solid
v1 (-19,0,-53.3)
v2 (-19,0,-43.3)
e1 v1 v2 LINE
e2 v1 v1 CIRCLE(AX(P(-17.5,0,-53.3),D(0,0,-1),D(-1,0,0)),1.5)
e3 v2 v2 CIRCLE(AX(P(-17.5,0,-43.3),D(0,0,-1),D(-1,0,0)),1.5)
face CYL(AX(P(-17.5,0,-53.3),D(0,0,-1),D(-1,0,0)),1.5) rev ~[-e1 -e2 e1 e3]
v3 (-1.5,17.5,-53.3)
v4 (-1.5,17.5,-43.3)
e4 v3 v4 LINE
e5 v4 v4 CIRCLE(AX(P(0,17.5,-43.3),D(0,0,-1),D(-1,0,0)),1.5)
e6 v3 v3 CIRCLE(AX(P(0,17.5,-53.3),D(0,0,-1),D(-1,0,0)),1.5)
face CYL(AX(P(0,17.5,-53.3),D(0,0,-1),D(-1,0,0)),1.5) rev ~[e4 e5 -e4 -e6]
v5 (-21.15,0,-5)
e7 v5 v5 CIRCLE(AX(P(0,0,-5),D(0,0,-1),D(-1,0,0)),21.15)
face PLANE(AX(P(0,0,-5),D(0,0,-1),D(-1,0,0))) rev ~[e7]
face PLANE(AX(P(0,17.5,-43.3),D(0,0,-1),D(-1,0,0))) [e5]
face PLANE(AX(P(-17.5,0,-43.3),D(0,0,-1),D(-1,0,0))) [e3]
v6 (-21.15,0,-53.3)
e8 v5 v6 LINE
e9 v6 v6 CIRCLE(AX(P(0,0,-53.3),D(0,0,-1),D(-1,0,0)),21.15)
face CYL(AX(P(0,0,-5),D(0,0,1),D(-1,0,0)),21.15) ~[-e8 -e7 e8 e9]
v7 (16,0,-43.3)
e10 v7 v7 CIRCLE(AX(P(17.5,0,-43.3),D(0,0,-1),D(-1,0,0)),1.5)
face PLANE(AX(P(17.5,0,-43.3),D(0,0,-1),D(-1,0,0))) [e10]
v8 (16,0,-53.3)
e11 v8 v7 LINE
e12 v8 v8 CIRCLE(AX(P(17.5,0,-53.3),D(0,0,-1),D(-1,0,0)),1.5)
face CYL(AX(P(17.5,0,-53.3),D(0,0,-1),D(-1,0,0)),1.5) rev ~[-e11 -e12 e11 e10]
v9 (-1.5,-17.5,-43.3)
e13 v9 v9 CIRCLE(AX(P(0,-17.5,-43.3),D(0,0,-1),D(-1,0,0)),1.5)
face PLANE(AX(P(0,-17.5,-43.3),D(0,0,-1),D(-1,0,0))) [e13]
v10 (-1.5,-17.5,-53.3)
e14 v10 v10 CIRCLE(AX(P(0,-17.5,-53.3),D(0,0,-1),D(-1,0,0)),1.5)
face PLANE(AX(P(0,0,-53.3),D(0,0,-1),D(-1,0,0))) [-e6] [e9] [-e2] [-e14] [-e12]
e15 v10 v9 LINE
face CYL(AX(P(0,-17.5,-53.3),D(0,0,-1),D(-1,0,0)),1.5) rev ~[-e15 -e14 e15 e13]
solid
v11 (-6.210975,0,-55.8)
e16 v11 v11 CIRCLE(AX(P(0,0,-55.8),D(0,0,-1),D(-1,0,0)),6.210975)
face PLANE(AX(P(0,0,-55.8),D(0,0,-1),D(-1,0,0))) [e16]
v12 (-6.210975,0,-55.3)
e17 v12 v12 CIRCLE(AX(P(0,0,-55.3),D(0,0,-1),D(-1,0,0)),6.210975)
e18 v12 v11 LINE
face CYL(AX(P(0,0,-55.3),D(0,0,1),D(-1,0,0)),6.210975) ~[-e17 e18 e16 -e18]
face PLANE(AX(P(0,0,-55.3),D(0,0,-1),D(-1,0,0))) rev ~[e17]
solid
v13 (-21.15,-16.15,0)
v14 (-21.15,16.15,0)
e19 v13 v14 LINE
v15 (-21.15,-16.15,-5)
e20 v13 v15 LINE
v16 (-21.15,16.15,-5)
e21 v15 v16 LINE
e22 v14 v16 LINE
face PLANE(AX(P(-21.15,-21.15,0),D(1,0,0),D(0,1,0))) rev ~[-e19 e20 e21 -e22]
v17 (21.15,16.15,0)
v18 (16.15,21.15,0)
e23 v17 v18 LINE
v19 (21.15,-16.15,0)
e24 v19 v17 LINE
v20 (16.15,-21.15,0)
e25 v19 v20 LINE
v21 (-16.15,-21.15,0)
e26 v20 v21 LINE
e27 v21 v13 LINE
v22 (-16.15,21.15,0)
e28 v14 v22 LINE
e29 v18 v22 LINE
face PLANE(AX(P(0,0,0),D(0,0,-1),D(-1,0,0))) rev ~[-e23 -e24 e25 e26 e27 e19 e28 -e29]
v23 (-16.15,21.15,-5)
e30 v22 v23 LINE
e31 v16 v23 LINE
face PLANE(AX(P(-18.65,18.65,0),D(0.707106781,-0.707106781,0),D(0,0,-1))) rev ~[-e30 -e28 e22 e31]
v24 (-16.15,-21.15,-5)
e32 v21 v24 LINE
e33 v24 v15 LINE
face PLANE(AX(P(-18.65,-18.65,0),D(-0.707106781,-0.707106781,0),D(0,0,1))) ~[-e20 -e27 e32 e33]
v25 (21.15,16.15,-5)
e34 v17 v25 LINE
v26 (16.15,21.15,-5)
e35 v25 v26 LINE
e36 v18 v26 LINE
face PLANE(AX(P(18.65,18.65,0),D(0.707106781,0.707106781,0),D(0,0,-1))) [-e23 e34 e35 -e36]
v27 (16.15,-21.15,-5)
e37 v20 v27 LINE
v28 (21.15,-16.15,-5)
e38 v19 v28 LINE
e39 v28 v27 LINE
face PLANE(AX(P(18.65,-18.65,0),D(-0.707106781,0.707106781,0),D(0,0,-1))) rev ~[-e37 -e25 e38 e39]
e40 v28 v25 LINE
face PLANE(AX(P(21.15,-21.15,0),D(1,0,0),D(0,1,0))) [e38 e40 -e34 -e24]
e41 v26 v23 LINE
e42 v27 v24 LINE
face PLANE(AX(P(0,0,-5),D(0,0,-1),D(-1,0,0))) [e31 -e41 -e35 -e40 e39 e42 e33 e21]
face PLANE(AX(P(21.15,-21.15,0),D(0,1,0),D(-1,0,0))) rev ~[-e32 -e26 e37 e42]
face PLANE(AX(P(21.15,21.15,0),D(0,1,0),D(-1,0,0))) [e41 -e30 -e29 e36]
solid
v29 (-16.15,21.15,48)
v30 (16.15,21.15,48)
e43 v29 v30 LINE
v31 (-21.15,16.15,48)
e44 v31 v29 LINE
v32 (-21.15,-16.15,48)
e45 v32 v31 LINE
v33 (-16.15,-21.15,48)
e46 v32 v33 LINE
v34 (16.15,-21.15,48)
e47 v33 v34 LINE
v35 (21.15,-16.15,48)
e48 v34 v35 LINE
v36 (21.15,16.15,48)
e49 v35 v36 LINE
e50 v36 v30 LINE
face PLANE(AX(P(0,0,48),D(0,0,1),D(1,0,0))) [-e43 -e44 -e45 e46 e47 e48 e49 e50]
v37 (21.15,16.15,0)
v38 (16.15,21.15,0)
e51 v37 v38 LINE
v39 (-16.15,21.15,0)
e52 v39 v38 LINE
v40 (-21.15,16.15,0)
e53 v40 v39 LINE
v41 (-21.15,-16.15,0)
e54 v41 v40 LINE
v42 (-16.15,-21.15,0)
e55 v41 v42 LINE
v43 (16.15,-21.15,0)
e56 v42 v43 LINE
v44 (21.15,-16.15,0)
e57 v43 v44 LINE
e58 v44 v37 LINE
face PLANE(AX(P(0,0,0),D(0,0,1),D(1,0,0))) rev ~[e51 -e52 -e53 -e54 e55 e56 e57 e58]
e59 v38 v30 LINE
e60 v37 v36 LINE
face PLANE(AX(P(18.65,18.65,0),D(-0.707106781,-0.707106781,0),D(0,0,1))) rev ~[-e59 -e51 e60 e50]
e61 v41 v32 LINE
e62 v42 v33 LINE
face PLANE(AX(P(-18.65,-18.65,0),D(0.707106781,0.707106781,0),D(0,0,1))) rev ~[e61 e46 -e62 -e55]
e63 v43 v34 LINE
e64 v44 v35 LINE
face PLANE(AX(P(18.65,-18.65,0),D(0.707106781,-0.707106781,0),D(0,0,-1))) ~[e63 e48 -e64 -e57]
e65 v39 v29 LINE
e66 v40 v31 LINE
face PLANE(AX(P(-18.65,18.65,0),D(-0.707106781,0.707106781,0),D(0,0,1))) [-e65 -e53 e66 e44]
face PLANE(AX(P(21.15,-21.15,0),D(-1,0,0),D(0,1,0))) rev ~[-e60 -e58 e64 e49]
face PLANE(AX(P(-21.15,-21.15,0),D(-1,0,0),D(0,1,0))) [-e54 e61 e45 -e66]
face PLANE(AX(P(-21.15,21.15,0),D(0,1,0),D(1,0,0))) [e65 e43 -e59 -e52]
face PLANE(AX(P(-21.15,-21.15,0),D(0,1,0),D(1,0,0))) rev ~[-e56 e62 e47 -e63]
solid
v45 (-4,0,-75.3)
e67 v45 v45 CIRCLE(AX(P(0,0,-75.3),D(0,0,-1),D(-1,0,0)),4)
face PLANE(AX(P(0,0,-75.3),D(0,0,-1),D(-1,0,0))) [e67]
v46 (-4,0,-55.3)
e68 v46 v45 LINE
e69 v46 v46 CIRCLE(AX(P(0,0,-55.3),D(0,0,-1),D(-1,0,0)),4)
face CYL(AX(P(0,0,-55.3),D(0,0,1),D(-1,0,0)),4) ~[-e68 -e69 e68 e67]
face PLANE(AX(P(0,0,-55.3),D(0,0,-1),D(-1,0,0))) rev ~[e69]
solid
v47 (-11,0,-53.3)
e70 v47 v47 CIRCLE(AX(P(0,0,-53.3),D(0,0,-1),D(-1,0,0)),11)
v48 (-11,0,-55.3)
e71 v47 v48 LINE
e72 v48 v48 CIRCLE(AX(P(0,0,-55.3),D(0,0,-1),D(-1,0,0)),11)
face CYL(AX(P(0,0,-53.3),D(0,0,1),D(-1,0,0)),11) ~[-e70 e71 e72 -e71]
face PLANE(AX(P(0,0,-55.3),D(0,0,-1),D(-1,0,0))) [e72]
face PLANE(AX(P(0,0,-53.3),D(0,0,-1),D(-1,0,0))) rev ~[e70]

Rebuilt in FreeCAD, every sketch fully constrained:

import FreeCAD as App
import Part
import Sketcher
from FreeCAD import Vector
Q = App.Units.Quantity


def edges_at(feature, points):
    """Names of the edges that pass closest to the given points."""
    edges = feature.Shape.Edges
    near = lambda p: min(range(len(edges)), key=lambda i: edges[i].distToShape(Part.Vertex(*p))[0])
    return sorted({f"Edge{near(p) + 1}" for p in points})


def add_polygon(sketch, points):
    """Adds a closed chain of lines whose ends are joined by coincident constraints."""
    first, n = sketch.GeometryCount, len(points)
    for a, b in zip(points, points[1:] + points[:1]):
        sketch.addGeometry(Part.LineSegment(App.Vector(*a, 0), App.Vector(*b, 0)), False)
    for i in range(n):
        sketch.addConstraint(Sketcher.Constraint("Coincident", first + i, 2, first + (i + 1) % n, 1))

doc = App.newDocument("Part")
params = doc.addObject("Spreadsheet::Sheet", "Params")
for row, (alias, value) in enumerate([
    ("sketch1_width", "42.3 mm"),
    ("pad1_length", "48 mm"),
    ("chamfer_size", "5 mm"),
    ("sketch2_width", "42.3 mm"),
    ("pad2_length", "5 mm"),
    ("chamfer2_size", "5 mm"),
    ("sketch3_diameter", "42.3 mm"),
    ("pad3_length", "48.3 mm"),
    ("sketch4_diameter", "3 mm"),
    ("pocket1_length", "10 mm"),
    ("sketch5_diameter", "22 mm"),
    ("pad4_length", "2 mm"),
    ("sketch6_diameter", "8 mm"),
    ("pad5_length", "20 mm"),
    ("pad6_length", "0.5 mm"),
], start=1):
    params.set(f"A{row}", alias)
    params.set(f"B{row}", "=" + value)
    params.setAlias(f"B{row}", alias)

body = doc.addObject("PartDesign::Body", "Body")

# Sketch on XY plane
sketch1 = doc.addObject("Sketcher::SketchObject", "Sketch")
body.addObject(sketch1)
sketch1.AttachmentSupport = (doc.XY_Plane, [""])
sketch1.MapMode = "FlatFace"
add_polygon(sketch1, [(-21.15, 21.15), (-21.15, -21.15), (21.15, -21.15), (21.15, 21.15)])  # lines 0-3
sketch1.addConstraint(Sketcher.Constraint("Vertical", 0))
sketch1.addConstraint(Sketcher.Constraint("Horizontal", 1))
sketch1.addConstraint(Sketcher.Constraint("Vertical", 2))
sketch1.addConstraint(Sketcher.Constraint("Horizontal", 3))
sketch1.addConstraint(Sketcher.Constraint("Symmetric", 0, 2, 2, 2, -1, 1))
sketch1.addConstraint(Sketcher.Constraint("Equal", 3, 0))
sketch1.addConstraint(Sketcher.Constraint("DistanceX", 1, 1, 1, 2, Q("42.3 mm")))
sketch1.setExpression("Constraints[10]", "Params.sketch1_width")
pad1 = doc.addObject("PartDesign::Pad", "Pad")
body.addObject(pad1)
pad1.Profile = sketch1
pad1.setExpression("Length", "Params.pad1_length")
doc.recompute()

chamfer = doc.addObject("PartDesign::Chamfer", "Chamfer")
body.addObject(chamfer)
chamfer.Base = (pad1, edges_at(pad1, [
    (21.15, -21.15, 24),
    (-21.15, -21.15, 24),
    (-21.15, 21.15, 24),
    (21.15, 21.15, 24),
]))
chamfer.setExpression("Size", "Params.chamfer_size")
body2 = doc.addObject("PartDesign::Body", "Body001")

# Sketch on XY plane
sketch2 = doc.addObject("Sketcher::SketchObject", "Sketch001")
body2.addObject(sketch2)
sketch2.AttachmentSupport = (doc.getObject("XY_Plane001"), [""])
sketch2.MapMode = "FlatFace"
add_polygon(sketch2, [(21.15, 21.15), (21.15, -21.15), (-21.15, -21.15), (-21.15, 21.15)])  # lines 0-3
sketch2.addConstraint(Sketcher.Constraint("Vertical", 0))
sketch2.addConstraint(Sketcher.Constraint("Horizontal", 1))
sketch2.addConstraint(Sketcher.Constraint("Vertical", 2))
sketch2.addConstraint(Sketcher.Constraint("Horizontal", 3))
sketch2.addConstraint(Sketcher.Constraint("Symmetric", 0, 2, 2, 2, -1, 1))
sketch2.addConstraint(Sketcher.Constraint("Equal", 3, 0))
sketch2.addConstraint(Sketcher.Constraint("DistanceX", 1, 2, 1, 1, Q("42.3 mm")))
sketch2.setExpression("Constraints[10]", "Params.sketch2_width")
pad2 = doc.addObject("PartDesign::Pad", "Pad001")
body2.addObject(pad2)
pad2.Profile = sketch2
pad2.setExpression("Length", "Params.pad2_length")
pad2.Reversed = True
doc.recompute()

chamfer2 = doc.addObject("PartDesign::Chamfer", "Chamfer001")
body2.addObject(chamfer2)
chamfer2.Base = (pad2, edges_at(pad2, [
    (-21.15, -21.15, -2.5),
    (21.15, -21.15, -2.5),
    (21.15, 21.15, -2.5),
    (-21.15, 21.15, -2.5),
]))
chamfer2.setExpression("Size", "Params.chamfer2_size")
body3 = doc.addObject("PartDesign::Body", "Body002")

# Sketch on XY plane
sketch3 = doc.addObject("Sketcher::SketchObject", "Sketch002")
body3.addObject(sketch3)
sketch3.AttachmentSupport = (doc.getObject("XY_Plane002"), [""])
sketch3.MapMode = "FlatFace"
sketch3.AttachmentOffset = App.Placement(Vector(0, 0, -5), App.Rotation())
sketch3.addGeometry(Part.Circle(Vector(0, 0, 0), Vector(0, 0, 1), 21.15), False)
sketch3.addConstraint(Sketcher.Constraint("Coincident", 0, 3, -1, 1))
sketch3.addConstraint(Sketcher.Constraint("Diameter", 0, Q("42.3 mm")))
sketch3.setExpression("Constraints[1]", "Params.sketch3_diameter")
pad3 = doc.addObject("PartDesign::Pad", "Pad002")
body3.addObject(pad3)
pad3.Profile = sketch3
pad3.setExpression("Length", "Params.pad3_length")
pad3.Reversed = True

# Sketch on XY plane
sketch4 = doc.addObject("Sketcher::SketchObject", "Sketch003")
body3.addObject(sketch4)
sketch4.AttachmentSupport = (doc.getObject("XY_Plane002"), [""])
sketch4.MapMode = "FlatFace"
sketch4.AttachmentOffset = App.Placement(Vector(0, 0, -53.3), App.Rotation())
sketch4.addGeometry(Part.Circle(Vector(17.5, 0, 0), Vector(0, 0, 1), 1.5), False)
sketch4.addGeometry(Part.Circle(Vector(0, 17.5, 0), Vector(0, 0, 1), 1.5), False)
sketch4.addGeometry(Part.Circle(Vector(-17.5, 0, 0), Vector(0, 0, 1), 1.5), False)
sketch4.addGeometry(Part.Circle(Vector(0, -17.5, 0), Vector(0, 0, 1), 1.5), False)
sketch4.addConstraint(Sketcher.Constraint("Equal", 0, 1))
sketch4.addConstraint(Sketcher.Constraint("Equal", 1, 2))
sketch4.addConstraint(Sketcher.Constraint("Equal", 2, 3))
sketch4.addConstraint(Sketcher.Constraint("Symmetric", 0, 3, 2, 3, -1, 1))
sketch4.addConstraint(Sketcher.Constraint("Symmetric", 1, 3, 3, 3, -1, 1))
sketch4.addConstraint(Sketcher.Constraint("PointOnObject", 0, 3, -1))
sketch4.addConstraint(Sketcher.Constraint("PointOnObject", 1, 3, -2))
sketch4.addConstraint(Sketcher.Constraint("Diameter", 0, Q("3 mm")))
sketch4.addConstraint(Sketcher.Constraint("DistanceX", 2, 3, 0, 3, Q("35 mm")))
sketch4.addConstraint(Sketcher.Constraint("DistanceY", 3, 3, 1, 3, Q("35 mm")))
sketch4.setExpression("Constraints[7]", "Params.sketch4_diameter")
pocket1 = doc.addObject("PartDesign::Pocket", "Pocket")
body3.addObject(pocket1)
pocket1.Profile = sketch4
pocket1.setExpression("Length", "Params.pocket1_length")
pocket1.Reversed = True
body4 = doc.addObject("PartDesign::Body", "Body003")

# Sketch on XY plane
sketch5 = doc.addObject("Sketcher::SketchObject", "Sketch004")
body4.addObject(sketch5)
sketch5.AttachmentSupport = (doc.getObject("XY_Plane003"), [""])
sketch5.MapMode = "FlatFace"
sketch5.AttachmentOffset = App.Placement(Vector(0, 0, -53.3), App.Rotation())
sketch5.addGeometry(Part.Circle(Vector(0, 0, 0), Vector(0, 0, 1), 11), False)
sketch5.addConstraint(Sketcher.Constraint("Coincident", 0, 3, -1, 1))
sketch5.addConstraint(Sketcher.Constraint("Diameter", 0, Q("22 mm")))
sketch5.setExpression("Constraints[1]", "Params.sketch5_diameter")
pad4 = doc.addObject("PartDesign::Pad", "Pad003")
body4.addObject(pad4)
pad4.Profile = sketch5
pad4.setExpression("Length", "Params.pad4_length")
pad4.Reversed = True
body5 = doc.addObject("PartDesign::Body", "Body004")

# Sketch on XY plane
sketch6 = doc.addObject("Sketcher::SketchObject", "Sketch005")
body5.addObject(sketch6)
sketch6.AttachmentSupport = (doc.getObject("XY_Plane004"), [""])
sketch6.MapMode = "FlatFace"
sketch6.AttachmentOffset = App.Placement(Vector(0, 0, -55.3), App.Rotation())
sketch6.addGeometry(Part.Circle(Vector(0, 0, 0), Vector(0, 0, 1), 4), False)
sketch6.addConstraint(Sketcher.Constraint("Coincident", 0, 3, -1, 1))
sketch6.addConstraint(Sketcher.Constraint("Diameter", 0, Q("8 mm")))
sketch6.setExpression("Constraints[1]", "Params.sketch6_diameter")
pad5 = doc.addObject("PartDesign::Pad", "Pad004")
body5.addObject(pad5)
pad5.Profile = sketch6
pad5.setExpression("Length", "Params.pad5_length")
pad5.Reversed = True
body6 = doc.addObject("PartDesign::Body", "Body005")

# Sketch on XY plane
sketch7 = doc.addObject("Sketcher::SketchObject", "Sketch006")
body6.addObject(sketch7)
sketch7.AttachmentSupport = (doc.getObject("XY_Plane005"), [""])
sketch7.MapMode = "FlatFace"
sketch7.AttachmentOffset = App.Placement(Vector(0, 0, -55.3), App.Rotation())
sketch7.addGeometry(Part.Circle(Vector(0, 0, 0), Vector(0, 0, 1), 6.210975), False)
sketch7.addConstraint(Sketcher.Constraint("Coincident", 0, 3, -1, 1))
sketch7.addConstraint(Sketcher.Constraint("Diameter", 0, Q("12.42195 mm")))
pad6 = doc.addObject("PartDesign::Pad", "Pad005")
body6.addObject(pad6)
pad6.Profile = sketch7
pad6.setExpression("Length", "Params.pad6_length")
pad6.Reversed = True

doc.recompute()
